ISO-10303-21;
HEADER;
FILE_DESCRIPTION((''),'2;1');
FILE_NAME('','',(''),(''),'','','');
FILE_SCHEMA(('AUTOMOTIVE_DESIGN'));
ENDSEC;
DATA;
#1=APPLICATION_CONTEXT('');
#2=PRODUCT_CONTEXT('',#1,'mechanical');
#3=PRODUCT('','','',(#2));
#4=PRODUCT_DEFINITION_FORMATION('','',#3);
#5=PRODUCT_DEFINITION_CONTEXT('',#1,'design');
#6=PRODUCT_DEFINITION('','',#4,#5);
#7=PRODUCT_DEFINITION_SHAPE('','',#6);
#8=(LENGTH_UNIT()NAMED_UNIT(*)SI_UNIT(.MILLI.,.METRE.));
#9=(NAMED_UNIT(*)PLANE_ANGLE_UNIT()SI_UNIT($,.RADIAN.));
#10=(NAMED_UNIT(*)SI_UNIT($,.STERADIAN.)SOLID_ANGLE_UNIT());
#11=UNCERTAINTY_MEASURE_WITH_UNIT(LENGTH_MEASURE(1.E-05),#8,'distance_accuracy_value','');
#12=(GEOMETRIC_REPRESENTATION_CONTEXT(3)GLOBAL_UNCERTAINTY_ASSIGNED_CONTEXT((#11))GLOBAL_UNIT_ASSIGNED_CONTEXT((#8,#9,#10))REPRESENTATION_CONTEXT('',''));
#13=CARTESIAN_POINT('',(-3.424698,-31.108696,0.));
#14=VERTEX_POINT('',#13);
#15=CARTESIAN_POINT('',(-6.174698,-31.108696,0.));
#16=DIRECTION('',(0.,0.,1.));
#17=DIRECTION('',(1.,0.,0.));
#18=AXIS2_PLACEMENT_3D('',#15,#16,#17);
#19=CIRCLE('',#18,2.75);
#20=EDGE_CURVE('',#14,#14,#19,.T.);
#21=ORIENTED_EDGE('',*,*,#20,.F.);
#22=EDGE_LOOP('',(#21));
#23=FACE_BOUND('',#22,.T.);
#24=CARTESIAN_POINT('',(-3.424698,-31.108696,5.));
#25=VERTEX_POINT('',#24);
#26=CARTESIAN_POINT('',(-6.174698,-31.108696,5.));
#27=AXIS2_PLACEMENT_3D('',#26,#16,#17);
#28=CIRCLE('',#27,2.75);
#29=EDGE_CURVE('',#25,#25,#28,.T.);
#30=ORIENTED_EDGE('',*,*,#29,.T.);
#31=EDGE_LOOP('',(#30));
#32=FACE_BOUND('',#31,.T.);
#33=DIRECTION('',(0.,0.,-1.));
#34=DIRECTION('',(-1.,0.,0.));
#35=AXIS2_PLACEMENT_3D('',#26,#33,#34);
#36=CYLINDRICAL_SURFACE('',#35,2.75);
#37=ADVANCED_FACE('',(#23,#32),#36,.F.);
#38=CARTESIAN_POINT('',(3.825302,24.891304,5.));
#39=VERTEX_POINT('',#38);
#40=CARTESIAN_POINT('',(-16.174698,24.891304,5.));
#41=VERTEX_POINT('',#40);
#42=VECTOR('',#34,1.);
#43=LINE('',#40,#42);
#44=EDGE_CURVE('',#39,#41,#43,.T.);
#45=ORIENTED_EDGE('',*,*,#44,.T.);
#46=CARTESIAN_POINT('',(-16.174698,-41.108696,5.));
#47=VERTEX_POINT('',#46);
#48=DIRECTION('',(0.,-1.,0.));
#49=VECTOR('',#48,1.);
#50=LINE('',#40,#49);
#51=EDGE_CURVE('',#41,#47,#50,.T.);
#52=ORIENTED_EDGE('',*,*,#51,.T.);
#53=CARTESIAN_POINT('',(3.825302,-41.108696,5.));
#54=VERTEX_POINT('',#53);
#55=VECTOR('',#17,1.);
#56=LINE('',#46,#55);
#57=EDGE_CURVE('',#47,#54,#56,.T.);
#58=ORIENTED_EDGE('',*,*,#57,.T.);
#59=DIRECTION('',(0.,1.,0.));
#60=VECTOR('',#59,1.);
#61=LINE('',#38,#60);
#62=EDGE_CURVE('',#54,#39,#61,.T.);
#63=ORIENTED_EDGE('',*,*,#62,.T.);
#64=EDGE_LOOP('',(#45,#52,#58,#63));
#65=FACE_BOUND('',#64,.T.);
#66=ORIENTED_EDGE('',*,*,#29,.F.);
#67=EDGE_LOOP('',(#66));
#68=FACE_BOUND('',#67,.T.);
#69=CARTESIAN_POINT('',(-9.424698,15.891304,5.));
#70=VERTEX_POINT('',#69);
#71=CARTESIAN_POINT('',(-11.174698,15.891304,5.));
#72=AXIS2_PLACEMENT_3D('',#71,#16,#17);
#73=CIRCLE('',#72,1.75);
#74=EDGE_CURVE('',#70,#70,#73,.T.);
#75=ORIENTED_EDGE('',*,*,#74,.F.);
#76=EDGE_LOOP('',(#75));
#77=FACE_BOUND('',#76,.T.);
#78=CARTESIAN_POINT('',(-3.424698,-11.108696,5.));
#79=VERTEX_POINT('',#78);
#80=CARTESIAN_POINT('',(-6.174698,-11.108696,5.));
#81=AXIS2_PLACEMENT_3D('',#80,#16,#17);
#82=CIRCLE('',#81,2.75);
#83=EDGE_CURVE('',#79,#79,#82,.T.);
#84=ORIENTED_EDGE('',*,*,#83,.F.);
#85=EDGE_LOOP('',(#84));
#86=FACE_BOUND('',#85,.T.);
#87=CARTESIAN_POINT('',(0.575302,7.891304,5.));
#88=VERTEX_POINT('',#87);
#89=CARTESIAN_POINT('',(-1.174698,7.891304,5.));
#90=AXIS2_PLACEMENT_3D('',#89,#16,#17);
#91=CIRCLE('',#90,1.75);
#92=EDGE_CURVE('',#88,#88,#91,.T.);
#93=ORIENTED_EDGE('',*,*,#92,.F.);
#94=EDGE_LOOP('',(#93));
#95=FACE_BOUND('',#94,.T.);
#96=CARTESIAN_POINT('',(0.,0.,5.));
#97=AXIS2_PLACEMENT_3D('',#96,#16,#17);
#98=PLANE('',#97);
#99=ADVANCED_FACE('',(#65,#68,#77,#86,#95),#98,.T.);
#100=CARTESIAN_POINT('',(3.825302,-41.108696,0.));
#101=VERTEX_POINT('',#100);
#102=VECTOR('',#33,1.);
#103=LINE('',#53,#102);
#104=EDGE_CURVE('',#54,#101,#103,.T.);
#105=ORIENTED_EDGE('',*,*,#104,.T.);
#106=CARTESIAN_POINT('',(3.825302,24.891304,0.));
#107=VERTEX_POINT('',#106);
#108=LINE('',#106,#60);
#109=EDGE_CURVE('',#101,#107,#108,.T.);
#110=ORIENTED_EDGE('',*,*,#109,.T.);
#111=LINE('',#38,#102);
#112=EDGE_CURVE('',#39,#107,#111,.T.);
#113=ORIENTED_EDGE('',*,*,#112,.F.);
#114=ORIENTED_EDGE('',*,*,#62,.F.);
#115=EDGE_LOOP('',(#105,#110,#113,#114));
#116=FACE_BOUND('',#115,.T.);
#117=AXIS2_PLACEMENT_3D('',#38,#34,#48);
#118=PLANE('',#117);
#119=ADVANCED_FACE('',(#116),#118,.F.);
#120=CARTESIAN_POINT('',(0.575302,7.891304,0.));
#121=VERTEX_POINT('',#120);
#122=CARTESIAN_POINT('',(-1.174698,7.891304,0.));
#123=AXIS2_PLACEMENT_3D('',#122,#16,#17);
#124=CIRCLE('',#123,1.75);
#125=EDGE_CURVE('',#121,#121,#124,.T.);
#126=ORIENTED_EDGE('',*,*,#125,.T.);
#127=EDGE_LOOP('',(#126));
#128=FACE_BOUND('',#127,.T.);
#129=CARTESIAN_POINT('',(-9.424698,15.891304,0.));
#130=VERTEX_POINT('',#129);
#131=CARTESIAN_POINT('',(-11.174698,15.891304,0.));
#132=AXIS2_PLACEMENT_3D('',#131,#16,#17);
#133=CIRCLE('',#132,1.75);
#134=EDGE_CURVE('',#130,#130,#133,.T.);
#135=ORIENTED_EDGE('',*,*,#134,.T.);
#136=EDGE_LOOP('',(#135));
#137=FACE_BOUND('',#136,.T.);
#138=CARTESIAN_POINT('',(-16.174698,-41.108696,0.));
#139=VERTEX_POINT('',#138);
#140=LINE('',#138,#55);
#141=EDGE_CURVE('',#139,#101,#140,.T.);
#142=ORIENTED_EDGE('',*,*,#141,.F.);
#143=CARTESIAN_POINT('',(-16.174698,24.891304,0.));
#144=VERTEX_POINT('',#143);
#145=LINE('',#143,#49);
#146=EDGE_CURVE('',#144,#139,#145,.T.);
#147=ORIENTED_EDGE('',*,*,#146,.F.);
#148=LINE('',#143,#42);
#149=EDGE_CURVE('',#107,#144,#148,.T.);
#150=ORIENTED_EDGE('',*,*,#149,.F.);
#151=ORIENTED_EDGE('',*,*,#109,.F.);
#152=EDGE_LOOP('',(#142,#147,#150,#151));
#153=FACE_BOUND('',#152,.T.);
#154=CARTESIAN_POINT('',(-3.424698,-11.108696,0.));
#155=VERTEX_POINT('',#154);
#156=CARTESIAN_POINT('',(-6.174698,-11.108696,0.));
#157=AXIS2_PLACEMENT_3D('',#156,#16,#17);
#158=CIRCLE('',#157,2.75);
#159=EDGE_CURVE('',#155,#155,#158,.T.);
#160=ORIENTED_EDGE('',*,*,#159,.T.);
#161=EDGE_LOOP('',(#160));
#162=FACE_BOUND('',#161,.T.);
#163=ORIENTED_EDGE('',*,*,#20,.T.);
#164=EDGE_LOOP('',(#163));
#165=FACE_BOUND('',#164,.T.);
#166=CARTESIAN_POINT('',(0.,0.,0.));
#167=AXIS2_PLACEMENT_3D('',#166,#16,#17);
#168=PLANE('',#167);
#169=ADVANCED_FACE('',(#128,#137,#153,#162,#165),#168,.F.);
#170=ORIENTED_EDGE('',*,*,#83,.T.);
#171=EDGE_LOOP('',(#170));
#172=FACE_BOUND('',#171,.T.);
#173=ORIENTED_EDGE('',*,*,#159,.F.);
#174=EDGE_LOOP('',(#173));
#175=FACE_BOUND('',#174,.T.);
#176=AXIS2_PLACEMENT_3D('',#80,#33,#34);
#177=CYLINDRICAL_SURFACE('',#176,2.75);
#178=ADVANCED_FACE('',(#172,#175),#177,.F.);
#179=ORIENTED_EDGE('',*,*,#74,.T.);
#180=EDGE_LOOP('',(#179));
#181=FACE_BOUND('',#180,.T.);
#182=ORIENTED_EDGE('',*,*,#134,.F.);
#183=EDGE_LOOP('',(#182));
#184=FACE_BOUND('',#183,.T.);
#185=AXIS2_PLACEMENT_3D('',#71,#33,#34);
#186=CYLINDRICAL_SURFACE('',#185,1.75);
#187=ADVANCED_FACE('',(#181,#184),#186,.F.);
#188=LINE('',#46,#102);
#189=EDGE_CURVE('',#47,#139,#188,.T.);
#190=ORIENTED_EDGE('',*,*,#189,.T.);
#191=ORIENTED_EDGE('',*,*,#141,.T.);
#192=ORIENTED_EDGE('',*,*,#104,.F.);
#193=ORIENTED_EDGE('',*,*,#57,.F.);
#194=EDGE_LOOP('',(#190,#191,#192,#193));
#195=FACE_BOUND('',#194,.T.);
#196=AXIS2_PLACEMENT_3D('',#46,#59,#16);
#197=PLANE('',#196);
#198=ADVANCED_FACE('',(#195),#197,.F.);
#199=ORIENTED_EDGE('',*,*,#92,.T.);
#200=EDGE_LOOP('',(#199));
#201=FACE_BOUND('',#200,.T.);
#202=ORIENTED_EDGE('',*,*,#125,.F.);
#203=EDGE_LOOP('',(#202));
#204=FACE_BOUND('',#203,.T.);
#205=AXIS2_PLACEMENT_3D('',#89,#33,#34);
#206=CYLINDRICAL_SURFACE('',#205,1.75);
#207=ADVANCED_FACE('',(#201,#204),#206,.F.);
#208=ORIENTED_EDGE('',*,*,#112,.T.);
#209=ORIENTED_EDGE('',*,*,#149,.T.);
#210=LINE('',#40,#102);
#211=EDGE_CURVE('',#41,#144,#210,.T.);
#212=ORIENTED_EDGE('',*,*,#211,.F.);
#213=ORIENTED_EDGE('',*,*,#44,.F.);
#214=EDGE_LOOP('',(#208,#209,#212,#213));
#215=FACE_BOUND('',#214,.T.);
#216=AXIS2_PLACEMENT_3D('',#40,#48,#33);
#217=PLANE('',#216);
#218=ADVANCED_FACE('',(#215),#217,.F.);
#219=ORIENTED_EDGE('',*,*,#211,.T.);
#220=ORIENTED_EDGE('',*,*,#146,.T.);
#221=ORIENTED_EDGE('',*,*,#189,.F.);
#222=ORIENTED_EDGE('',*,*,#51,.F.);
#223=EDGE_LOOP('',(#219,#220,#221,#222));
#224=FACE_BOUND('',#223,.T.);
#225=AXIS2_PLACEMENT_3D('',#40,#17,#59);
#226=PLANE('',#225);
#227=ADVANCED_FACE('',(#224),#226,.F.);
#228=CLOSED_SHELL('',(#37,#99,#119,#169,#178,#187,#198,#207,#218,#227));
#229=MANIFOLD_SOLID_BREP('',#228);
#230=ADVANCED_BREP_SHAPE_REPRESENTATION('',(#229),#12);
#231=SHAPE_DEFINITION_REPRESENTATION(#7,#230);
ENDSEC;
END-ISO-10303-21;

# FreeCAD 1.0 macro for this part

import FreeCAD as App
import Part
import Sketcher

V = App.Vector
Q = App.Units.Quantity

doc = App.newDocument("Part")
params = doc.addObject("Spreadsheet::Sheet", "Params")
for row, (alias, value) in enumerate([
    ("sketch1_diameter", "5.5 mm"),
    ("sketch1_diameter2", "3.5 mm"),
    ("sketch1_width", "20 mm"),
    ("sketch1_height", "66 mm"),
    ("pad1_length", "5 mm"),
], start=1):
    params.set(f"A{row}", alias)
    params.set(f"B{row}", "=" + value)
    params.setAlias(f"B{row}", alias)

body = doc.addObject("PartDesign::Body", "Body")

sketch1 = body.newObject("Sketcher::SketchObject", "Sketch")
sketch1.AttachmentSupport = (doc.getObject("XY_Plane"), [""])
sketch1.MapMode = "FlatFace"
sketch1.addGeometry(Part.LineSegment(V(-16.2, 24.9, 0), V(-16.2, -41.1, 0)), False)
sketch1.addGeometry(Part.LineSegment(V(-16.2, -41.1, 0), V(3.8, -41.1, 0)), False)
sketch1.addGeometry(Part.LineSegment(V(3.8, -41.1, 0), V(3.8, 24.9, 0)), False)
sketch1.addGeometry(Part.LineSegment(V(3.8, 24.9, 0), V(-16.2, 24.9, 0)), False)
sketch1.addGeometry(Part.Circle(V(-6.2, -31.1, 0), V(0, 0, 1), 2.8), False)
sketch1.addGeometry(Part.Circle(V(-6.2, -11.1, 0), V(0, 0, 1), 2.8), False)
sketch1.addGeometry(Part.Circle(V(-11.2, 15.9, 0), V(0, 0, 1), 1.8), False)
sketch1.addGeometry(Part.Circle(V(-1.2, 7.9, 0), V(0, 0, 1), 1.8), False)
sketch1.addConstraint(Sketcher.Constraint("Coincident", 0, 2, 1, 1))
sketch1.addConstraint(Sketcher.Constraint("Coincident", 1, 2, 2, 1))
sketch1.addConstraint(Sketcher.Constraint("Coincident", 2, 2, 3, 1))
sketch1.addConstraint(Sketcher.Constraint("Coincident", 3, 2, 0, 1))
sketch1.addConstraint(Sketcher.Constraint("Vertical", 0))
sketch1.addConstraint(Sketcher.Constraint("Horizontal", 1))
sketch1.addConstraint(Sketcher.Constraint("Vertical", 2))
sketch1.addConstraint(Sketcher.Constraint("Horizontal", 3))
sketch1.addConstraint(Sketcher.Constraint("Equal", 4, 5))
sketch1.addConstraint(Sketcher.Constraint("Equal", 6, 7))
sketch1.addConstraint(Sketcher.Constraint("Vertical", 4, 3, 5, 3))
sketch1.addConstraint(Sketcher.Constraint("Diameter", 4, Q("5.5 mm")))
sketch1.addConstraint(Sketcher.Constraint("Diameter", 6, Q("3.5 mm")))
sketch1.addConstraint(Sketcher.Constraint("DistanceX", 1, 1, 1, 2, Q("20 mm")))
sketch1.addConstraint(Sketcher.Constraint("DistanceY", 0, 2, 0, 1, Q("66 mm")))
sketch1.addConstraint(Sketcher.Constraint("DistanceY", 4, 3, 5, 3, Q("20 mm")))
sketch1.addConstraint(Sketcher.Constraint("DistanceX", 6, 3, 5, 3, Q("5 mm")))
sketch1.addConstraint(Sketcher.Constraint("DistanceY", 5, 3, 6, 3, Q("27 mm")))
sketch1.addConstraint(Sketcher.Constraint("DistanceX", 6, 3, 7, 3, Q("10 mm")))
sketch1.addConstraint(Sketcher.Constraint("DistanceY", 7, 3, 6, 3, Q("8 mm")))
sketch1.addConstraint(Sketcher.Constraint("DistanceX", 0, 2, 4, 3, Q("10 mm")))
sketch1.addConstraint(Sketcher.Constraint("DistanceY", 0, 2, 4, 3, Q("10 mm")))
sketch1.addConstraint(Sketcher.Constraint("DistanceX", 4, 3, -1, 1, Q("6.174698 mm")))
sketch1.addConstraint(Sketcher.Constraint("DistanceY", 4, 3, -1, 1, Q("31.108696 mm")))
sketch1.setExpression("Constraints[11]", "Params.sketch1_diameter")
sketch1.setExpression("Constraints[12]", "Params.sketch1_diameter2")
sketch1.setExpression("Constraints[13]", "Params.sketch1_width")
sketch1.setExpression("Constraints[14]", "Params.sketch1_height")
pad1 = body.newObject("PartDesign::Pad", "Pad")
pad1.Profile = sketch1
pad1.setExpression("Length", "Params.pad1_length")

doc.recompute()
